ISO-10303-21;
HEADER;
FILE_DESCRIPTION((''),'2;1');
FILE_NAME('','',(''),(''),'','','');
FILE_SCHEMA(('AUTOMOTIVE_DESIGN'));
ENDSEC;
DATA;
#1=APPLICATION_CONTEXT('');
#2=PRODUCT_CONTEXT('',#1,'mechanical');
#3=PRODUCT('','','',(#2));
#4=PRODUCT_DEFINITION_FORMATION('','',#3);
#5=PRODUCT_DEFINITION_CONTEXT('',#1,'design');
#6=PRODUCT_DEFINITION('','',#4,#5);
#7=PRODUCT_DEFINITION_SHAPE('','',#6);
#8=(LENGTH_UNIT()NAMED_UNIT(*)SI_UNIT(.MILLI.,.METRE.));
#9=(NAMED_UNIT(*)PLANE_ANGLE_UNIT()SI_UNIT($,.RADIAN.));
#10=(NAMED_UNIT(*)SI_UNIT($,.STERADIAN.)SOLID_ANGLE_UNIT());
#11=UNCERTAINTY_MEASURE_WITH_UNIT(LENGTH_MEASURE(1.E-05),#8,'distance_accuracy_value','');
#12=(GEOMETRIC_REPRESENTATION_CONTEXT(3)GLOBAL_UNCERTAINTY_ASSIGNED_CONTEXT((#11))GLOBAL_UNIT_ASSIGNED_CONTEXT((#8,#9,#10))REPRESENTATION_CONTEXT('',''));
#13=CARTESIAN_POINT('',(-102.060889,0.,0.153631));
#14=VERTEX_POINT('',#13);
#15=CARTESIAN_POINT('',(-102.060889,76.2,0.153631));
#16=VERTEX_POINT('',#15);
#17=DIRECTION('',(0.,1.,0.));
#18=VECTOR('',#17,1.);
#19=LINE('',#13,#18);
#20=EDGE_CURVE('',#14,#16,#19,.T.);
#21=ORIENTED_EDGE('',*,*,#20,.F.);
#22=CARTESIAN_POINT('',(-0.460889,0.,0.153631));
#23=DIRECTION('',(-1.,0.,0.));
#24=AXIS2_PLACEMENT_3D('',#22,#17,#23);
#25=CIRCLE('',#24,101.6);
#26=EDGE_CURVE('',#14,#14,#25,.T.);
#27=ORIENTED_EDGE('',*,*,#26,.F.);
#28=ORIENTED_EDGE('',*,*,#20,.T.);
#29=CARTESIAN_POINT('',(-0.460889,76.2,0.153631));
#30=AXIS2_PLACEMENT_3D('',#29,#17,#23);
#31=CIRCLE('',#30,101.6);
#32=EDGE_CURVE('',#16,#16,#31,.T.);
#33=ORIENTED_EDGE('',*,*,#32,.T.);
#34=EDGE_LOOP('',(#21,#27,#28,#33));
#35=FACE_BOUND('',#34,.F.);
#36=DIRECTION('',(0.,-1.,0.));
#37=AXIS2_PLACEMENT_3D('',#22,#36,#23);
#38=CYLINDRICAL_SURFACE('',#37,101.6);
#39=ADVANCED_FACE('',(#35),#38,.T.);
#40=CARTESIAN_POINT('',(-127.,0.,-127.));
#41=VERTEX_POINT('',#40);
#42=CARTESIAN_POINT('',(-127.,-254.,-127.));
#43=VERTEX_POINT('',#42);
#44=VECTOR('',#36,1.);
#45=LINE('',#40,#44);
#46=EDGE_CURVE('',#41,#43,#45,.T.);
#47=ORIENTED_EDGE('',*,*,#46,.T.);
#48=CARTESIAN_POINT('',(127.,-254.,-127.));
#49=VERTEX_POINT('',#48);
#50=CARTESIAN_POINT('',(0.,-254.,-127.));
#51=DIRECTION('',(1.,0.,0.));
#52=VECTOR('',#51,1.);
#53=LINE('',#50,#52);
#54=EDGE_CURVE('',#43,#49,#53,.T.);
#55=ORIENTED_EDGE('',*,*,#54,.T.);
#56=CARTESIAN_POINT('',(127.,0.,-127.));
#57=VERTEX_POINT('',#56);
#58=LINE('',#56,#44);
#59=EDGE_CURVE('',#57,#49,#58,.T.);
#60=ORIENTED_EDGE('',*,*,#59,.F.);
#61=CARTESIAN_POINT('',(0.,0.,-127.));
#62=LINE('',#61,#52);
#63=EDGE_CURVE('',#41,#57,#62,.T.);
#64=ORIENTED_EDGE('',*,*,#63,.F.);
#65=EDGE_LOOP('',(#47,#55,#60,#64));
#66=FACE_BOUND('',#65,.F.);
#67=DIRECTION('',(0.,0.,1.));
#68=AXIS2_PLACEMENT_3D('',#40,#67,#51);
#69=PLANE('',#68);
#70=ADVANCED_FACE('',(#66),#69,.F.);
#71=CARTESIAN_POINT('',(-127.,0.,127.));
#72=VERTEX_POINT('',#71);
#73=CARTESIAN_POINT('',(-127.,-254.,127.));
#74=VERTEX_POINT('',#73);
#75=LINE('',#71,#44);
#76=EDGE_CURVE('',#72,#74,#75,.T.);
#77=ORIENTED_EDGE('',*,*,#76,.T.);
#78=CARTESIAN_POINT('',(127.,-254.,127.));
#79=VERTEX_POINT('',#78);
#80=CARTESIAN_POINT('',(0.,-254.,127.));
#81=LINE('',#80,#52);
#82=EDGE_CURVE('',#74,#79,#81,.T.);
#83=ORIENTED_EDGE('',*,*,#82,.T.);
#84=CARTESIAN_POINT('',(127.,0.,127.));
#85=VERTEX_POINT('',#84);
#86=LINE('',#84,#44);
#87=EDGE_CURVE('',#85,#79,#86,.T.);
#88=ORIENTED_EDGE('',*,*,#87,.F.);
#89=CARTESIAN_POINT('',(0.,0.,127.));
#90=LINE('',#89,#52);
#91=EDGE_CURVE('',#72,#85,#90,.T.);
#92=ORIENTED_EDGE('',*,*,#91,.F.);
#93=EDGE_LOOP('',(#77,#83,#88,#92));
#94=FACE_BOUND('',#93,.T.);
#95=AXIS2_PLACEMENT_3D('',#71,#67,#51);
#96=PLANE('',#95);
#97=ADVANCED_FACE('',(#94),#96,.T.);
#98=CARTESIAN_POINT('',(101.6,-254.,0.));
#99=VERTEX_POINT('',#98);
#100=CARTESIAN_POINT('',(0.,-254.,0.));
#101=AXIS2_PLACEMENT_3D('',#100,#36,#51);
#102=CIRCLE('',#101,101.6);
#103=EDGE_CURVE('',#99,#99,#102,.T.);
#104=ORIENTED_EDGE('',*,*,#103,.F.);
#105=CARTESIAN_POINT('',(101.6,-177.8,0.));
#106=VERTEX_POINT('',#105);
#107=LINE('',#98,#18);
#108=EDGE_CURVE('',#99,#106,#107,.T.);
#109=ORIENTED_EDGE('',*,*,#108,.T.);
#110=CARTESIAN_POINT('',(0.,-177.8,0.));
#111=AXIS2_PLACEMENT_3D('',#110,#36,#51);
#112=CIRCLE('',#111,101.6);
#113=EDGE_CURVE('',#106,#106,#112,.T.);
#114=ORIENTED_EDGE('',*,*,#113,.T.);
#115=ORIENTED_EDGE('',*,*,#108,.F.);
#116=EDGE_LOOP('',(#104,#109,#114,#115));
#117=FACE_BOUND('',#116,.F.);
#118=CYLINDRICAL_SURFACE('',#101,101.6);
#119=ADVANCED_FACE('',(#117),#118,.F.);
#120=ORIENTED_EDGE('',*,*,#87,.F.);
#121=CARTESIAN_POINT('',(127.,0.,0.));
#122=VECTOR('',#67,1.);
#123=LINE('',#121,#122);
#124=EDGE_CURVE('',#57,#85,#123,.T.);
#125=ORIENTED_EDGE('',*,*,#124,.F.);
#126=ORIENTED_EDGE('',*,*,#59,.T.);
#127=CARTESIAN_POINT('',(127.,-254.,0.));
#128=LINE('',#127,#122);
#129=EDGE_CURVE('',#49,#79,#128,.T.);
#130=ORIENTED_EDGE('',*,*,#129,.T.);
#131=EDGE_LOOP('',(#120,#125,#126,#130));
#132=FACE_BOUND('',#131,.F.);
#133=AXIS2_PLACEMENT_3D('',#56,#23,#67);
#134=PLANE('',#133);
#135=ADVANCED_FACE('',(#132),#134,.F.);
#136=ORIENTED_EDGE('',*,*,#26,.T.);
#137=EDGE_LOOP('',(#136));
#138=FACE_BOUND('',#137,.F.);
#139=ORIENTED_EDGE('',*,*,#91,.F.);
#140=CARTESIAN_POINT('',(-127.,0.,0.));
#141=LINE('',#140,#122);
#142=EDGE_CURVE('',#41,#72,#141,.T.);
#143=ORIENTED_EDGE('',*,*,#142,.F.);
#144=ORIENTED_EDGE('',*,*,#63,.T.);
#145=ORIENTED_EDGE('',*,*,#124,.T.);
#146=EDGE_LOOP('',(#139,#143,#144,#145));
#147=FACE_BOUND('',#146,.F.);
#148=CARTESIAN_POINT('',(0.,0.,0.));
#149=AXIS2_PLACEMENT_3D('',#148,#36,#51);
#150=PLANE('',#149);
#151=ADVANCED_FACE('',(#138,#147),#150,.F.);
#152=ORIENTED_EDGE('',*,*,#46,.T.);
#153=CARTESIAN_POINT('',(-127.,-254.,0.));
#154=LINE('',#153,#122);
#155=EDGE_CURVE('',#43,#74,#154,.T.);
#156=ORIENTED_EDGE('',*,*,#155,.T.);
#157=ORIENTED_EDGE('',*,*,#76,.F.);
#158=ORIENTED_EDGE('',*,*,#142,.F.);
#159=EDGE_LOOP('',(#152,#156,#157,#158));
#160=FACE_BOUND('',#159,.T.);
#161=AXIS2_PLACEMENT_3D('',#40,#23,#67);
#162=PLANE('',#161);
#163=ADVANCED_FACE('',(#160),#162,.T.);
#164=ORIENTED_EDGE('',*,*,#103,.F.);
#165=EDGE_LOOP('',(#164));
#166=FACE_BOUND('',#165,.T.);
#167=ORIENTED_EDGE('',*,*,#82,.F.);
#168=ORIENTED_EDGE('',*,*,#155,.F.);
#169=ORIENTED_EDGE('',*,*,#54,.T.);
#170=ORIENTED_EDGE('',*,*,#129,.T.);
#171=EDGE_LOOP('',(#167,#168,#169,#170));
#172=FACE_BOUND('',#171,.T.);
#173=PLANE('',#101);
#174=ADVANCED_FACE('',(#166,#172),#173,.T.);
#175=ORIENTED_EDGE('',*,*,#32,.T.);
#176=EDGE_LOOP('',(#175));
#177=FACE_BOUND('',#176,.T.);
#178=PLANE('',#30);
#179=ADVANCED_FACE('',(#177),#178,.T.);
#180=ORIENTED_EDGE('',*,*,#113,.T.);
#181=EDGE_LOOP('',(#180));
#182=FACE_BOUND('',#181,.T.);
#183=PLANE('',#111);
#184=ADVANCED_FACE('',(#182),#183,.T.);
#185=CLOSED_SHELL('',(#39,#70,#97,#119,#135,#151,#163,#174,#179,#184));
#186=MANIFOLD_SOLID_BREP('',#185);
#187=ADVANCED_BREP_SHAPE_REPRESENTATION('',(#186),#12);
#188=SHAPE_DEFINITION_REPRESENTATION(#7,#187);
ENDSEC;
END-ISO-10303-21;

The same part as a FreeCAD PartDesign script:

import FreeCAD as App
import Part
import Sketcher
from FreeCAD import Vector
Q = App.Units.Quantity


def add_polygon(sketch, points):
    """Adds a closed chain of lines whose ends are joined by coincident constraints."""
    first, n = sketch.GeometryCount, len(points)
    for a, b in zip(points, points[1:] + points[:1]):
        sketch.addGeometry(Part.LineSegment(App.Vector(*a, 0), App.Vector(*b, 0)), False)
    for i in range(n):
        sketch.addConstraint(Sketcher.Constraint("Coincident", first + i, 2, first + (i + 1) % n, 1))

doc = App.newDocument("Part")
body = doc.addObject("PartDesign::Body", "Body")

sketch1 = doc.addObject("Sketcher::SketchObject", "Sketch")
body.addObject(sketch1)
sketch1.AttachmentSupport = (doc.XZ_Plane, [""])
sketch1.MapMode = "FlatFace"
add_polygon(sketch1, [(-127, 127), (-127, -127), (127, -127), (127, 127)])
sketch1.addConstraint([
    Sketcher.Constraint("Vertical", 0),
    Sketcher.Constraint("Horizontal", 1),
    Sketcher.Constraint("Vertical", 2),
    Sketcher.Constraint("Horizontal", 3),
    Sketcher.Constraint("Symmetric", 0, 2, 2, 2, -1, 1),
    Sketcher.Constraint("Equal", 3, 0),
    Sketcher.Constraint("DistanceX", 1, 1, 1, 2, Q("10 in")),
])
pad1 = doc.addObject("PartDesign::Pad", "Pad")
body.addObject(pad1)
pad1.Profile = sketch1
pad1.Length = Q("10 in")

sketch2 = doc.addObject("Sketcher::SketchObject", "Sketch001")
body.addObject(sketch2)
sketch2.AttachmentSupport = (doc.XZ_Plane, [""])
sketch2.MapMode = "FlatFace"
sketch2.AttachmentOffset = App.Placement(Vector(0, 0, 10 * 25.4), App.Rotation())
sketch2.addGeometry(Part.Circle(Vector(0, 0, 0), Vector(0, 0, 1), 102), False)
sketch2.addConstraint([
    Sketcher.Constraint("Coincident", 0, 3, -1, 1),
    Sketcher.Constraint("Diameter", 0, Q("8 in")),
])
pocket1 = doc.addObject("PartDesign::Pocket", "Pocket")
body.addObject(pocket1)
pocket1.Profile = sketch2
pocket1.Length = Q("3 in")

sketch3 = doc.addObject("Sketcher::SketchObject", "Sketch002")
body.addObject(sketch3)
sketch3.AttachmentSupport = (doc.XZ_Plane, [""])
sketch3.MapMode = "FlatFace"
sketch3.addGeometry(Part.Circle(Vector(0, 0, 0), Vector(0, 0, 1), 102), False)
sketch3.addConstraint([
    Sketcher.Constraint("Diameter", 0, Q("8 in")),
    Sketcher.Constraint("DistanceX", 0, 3, -1, 1, 0.460889),
    Sketcher.Constraint("DistanceY", -1, 1, 0, 3, 0.153631),
])
pad2 = doc.addObject("PartDesign::Pad", "Pad001")
body.addObject(pad2)
pad2.Profile = sketch3
pad2.Length = Q("3 in")
pad2.Reversed = True

doc.recompute()
